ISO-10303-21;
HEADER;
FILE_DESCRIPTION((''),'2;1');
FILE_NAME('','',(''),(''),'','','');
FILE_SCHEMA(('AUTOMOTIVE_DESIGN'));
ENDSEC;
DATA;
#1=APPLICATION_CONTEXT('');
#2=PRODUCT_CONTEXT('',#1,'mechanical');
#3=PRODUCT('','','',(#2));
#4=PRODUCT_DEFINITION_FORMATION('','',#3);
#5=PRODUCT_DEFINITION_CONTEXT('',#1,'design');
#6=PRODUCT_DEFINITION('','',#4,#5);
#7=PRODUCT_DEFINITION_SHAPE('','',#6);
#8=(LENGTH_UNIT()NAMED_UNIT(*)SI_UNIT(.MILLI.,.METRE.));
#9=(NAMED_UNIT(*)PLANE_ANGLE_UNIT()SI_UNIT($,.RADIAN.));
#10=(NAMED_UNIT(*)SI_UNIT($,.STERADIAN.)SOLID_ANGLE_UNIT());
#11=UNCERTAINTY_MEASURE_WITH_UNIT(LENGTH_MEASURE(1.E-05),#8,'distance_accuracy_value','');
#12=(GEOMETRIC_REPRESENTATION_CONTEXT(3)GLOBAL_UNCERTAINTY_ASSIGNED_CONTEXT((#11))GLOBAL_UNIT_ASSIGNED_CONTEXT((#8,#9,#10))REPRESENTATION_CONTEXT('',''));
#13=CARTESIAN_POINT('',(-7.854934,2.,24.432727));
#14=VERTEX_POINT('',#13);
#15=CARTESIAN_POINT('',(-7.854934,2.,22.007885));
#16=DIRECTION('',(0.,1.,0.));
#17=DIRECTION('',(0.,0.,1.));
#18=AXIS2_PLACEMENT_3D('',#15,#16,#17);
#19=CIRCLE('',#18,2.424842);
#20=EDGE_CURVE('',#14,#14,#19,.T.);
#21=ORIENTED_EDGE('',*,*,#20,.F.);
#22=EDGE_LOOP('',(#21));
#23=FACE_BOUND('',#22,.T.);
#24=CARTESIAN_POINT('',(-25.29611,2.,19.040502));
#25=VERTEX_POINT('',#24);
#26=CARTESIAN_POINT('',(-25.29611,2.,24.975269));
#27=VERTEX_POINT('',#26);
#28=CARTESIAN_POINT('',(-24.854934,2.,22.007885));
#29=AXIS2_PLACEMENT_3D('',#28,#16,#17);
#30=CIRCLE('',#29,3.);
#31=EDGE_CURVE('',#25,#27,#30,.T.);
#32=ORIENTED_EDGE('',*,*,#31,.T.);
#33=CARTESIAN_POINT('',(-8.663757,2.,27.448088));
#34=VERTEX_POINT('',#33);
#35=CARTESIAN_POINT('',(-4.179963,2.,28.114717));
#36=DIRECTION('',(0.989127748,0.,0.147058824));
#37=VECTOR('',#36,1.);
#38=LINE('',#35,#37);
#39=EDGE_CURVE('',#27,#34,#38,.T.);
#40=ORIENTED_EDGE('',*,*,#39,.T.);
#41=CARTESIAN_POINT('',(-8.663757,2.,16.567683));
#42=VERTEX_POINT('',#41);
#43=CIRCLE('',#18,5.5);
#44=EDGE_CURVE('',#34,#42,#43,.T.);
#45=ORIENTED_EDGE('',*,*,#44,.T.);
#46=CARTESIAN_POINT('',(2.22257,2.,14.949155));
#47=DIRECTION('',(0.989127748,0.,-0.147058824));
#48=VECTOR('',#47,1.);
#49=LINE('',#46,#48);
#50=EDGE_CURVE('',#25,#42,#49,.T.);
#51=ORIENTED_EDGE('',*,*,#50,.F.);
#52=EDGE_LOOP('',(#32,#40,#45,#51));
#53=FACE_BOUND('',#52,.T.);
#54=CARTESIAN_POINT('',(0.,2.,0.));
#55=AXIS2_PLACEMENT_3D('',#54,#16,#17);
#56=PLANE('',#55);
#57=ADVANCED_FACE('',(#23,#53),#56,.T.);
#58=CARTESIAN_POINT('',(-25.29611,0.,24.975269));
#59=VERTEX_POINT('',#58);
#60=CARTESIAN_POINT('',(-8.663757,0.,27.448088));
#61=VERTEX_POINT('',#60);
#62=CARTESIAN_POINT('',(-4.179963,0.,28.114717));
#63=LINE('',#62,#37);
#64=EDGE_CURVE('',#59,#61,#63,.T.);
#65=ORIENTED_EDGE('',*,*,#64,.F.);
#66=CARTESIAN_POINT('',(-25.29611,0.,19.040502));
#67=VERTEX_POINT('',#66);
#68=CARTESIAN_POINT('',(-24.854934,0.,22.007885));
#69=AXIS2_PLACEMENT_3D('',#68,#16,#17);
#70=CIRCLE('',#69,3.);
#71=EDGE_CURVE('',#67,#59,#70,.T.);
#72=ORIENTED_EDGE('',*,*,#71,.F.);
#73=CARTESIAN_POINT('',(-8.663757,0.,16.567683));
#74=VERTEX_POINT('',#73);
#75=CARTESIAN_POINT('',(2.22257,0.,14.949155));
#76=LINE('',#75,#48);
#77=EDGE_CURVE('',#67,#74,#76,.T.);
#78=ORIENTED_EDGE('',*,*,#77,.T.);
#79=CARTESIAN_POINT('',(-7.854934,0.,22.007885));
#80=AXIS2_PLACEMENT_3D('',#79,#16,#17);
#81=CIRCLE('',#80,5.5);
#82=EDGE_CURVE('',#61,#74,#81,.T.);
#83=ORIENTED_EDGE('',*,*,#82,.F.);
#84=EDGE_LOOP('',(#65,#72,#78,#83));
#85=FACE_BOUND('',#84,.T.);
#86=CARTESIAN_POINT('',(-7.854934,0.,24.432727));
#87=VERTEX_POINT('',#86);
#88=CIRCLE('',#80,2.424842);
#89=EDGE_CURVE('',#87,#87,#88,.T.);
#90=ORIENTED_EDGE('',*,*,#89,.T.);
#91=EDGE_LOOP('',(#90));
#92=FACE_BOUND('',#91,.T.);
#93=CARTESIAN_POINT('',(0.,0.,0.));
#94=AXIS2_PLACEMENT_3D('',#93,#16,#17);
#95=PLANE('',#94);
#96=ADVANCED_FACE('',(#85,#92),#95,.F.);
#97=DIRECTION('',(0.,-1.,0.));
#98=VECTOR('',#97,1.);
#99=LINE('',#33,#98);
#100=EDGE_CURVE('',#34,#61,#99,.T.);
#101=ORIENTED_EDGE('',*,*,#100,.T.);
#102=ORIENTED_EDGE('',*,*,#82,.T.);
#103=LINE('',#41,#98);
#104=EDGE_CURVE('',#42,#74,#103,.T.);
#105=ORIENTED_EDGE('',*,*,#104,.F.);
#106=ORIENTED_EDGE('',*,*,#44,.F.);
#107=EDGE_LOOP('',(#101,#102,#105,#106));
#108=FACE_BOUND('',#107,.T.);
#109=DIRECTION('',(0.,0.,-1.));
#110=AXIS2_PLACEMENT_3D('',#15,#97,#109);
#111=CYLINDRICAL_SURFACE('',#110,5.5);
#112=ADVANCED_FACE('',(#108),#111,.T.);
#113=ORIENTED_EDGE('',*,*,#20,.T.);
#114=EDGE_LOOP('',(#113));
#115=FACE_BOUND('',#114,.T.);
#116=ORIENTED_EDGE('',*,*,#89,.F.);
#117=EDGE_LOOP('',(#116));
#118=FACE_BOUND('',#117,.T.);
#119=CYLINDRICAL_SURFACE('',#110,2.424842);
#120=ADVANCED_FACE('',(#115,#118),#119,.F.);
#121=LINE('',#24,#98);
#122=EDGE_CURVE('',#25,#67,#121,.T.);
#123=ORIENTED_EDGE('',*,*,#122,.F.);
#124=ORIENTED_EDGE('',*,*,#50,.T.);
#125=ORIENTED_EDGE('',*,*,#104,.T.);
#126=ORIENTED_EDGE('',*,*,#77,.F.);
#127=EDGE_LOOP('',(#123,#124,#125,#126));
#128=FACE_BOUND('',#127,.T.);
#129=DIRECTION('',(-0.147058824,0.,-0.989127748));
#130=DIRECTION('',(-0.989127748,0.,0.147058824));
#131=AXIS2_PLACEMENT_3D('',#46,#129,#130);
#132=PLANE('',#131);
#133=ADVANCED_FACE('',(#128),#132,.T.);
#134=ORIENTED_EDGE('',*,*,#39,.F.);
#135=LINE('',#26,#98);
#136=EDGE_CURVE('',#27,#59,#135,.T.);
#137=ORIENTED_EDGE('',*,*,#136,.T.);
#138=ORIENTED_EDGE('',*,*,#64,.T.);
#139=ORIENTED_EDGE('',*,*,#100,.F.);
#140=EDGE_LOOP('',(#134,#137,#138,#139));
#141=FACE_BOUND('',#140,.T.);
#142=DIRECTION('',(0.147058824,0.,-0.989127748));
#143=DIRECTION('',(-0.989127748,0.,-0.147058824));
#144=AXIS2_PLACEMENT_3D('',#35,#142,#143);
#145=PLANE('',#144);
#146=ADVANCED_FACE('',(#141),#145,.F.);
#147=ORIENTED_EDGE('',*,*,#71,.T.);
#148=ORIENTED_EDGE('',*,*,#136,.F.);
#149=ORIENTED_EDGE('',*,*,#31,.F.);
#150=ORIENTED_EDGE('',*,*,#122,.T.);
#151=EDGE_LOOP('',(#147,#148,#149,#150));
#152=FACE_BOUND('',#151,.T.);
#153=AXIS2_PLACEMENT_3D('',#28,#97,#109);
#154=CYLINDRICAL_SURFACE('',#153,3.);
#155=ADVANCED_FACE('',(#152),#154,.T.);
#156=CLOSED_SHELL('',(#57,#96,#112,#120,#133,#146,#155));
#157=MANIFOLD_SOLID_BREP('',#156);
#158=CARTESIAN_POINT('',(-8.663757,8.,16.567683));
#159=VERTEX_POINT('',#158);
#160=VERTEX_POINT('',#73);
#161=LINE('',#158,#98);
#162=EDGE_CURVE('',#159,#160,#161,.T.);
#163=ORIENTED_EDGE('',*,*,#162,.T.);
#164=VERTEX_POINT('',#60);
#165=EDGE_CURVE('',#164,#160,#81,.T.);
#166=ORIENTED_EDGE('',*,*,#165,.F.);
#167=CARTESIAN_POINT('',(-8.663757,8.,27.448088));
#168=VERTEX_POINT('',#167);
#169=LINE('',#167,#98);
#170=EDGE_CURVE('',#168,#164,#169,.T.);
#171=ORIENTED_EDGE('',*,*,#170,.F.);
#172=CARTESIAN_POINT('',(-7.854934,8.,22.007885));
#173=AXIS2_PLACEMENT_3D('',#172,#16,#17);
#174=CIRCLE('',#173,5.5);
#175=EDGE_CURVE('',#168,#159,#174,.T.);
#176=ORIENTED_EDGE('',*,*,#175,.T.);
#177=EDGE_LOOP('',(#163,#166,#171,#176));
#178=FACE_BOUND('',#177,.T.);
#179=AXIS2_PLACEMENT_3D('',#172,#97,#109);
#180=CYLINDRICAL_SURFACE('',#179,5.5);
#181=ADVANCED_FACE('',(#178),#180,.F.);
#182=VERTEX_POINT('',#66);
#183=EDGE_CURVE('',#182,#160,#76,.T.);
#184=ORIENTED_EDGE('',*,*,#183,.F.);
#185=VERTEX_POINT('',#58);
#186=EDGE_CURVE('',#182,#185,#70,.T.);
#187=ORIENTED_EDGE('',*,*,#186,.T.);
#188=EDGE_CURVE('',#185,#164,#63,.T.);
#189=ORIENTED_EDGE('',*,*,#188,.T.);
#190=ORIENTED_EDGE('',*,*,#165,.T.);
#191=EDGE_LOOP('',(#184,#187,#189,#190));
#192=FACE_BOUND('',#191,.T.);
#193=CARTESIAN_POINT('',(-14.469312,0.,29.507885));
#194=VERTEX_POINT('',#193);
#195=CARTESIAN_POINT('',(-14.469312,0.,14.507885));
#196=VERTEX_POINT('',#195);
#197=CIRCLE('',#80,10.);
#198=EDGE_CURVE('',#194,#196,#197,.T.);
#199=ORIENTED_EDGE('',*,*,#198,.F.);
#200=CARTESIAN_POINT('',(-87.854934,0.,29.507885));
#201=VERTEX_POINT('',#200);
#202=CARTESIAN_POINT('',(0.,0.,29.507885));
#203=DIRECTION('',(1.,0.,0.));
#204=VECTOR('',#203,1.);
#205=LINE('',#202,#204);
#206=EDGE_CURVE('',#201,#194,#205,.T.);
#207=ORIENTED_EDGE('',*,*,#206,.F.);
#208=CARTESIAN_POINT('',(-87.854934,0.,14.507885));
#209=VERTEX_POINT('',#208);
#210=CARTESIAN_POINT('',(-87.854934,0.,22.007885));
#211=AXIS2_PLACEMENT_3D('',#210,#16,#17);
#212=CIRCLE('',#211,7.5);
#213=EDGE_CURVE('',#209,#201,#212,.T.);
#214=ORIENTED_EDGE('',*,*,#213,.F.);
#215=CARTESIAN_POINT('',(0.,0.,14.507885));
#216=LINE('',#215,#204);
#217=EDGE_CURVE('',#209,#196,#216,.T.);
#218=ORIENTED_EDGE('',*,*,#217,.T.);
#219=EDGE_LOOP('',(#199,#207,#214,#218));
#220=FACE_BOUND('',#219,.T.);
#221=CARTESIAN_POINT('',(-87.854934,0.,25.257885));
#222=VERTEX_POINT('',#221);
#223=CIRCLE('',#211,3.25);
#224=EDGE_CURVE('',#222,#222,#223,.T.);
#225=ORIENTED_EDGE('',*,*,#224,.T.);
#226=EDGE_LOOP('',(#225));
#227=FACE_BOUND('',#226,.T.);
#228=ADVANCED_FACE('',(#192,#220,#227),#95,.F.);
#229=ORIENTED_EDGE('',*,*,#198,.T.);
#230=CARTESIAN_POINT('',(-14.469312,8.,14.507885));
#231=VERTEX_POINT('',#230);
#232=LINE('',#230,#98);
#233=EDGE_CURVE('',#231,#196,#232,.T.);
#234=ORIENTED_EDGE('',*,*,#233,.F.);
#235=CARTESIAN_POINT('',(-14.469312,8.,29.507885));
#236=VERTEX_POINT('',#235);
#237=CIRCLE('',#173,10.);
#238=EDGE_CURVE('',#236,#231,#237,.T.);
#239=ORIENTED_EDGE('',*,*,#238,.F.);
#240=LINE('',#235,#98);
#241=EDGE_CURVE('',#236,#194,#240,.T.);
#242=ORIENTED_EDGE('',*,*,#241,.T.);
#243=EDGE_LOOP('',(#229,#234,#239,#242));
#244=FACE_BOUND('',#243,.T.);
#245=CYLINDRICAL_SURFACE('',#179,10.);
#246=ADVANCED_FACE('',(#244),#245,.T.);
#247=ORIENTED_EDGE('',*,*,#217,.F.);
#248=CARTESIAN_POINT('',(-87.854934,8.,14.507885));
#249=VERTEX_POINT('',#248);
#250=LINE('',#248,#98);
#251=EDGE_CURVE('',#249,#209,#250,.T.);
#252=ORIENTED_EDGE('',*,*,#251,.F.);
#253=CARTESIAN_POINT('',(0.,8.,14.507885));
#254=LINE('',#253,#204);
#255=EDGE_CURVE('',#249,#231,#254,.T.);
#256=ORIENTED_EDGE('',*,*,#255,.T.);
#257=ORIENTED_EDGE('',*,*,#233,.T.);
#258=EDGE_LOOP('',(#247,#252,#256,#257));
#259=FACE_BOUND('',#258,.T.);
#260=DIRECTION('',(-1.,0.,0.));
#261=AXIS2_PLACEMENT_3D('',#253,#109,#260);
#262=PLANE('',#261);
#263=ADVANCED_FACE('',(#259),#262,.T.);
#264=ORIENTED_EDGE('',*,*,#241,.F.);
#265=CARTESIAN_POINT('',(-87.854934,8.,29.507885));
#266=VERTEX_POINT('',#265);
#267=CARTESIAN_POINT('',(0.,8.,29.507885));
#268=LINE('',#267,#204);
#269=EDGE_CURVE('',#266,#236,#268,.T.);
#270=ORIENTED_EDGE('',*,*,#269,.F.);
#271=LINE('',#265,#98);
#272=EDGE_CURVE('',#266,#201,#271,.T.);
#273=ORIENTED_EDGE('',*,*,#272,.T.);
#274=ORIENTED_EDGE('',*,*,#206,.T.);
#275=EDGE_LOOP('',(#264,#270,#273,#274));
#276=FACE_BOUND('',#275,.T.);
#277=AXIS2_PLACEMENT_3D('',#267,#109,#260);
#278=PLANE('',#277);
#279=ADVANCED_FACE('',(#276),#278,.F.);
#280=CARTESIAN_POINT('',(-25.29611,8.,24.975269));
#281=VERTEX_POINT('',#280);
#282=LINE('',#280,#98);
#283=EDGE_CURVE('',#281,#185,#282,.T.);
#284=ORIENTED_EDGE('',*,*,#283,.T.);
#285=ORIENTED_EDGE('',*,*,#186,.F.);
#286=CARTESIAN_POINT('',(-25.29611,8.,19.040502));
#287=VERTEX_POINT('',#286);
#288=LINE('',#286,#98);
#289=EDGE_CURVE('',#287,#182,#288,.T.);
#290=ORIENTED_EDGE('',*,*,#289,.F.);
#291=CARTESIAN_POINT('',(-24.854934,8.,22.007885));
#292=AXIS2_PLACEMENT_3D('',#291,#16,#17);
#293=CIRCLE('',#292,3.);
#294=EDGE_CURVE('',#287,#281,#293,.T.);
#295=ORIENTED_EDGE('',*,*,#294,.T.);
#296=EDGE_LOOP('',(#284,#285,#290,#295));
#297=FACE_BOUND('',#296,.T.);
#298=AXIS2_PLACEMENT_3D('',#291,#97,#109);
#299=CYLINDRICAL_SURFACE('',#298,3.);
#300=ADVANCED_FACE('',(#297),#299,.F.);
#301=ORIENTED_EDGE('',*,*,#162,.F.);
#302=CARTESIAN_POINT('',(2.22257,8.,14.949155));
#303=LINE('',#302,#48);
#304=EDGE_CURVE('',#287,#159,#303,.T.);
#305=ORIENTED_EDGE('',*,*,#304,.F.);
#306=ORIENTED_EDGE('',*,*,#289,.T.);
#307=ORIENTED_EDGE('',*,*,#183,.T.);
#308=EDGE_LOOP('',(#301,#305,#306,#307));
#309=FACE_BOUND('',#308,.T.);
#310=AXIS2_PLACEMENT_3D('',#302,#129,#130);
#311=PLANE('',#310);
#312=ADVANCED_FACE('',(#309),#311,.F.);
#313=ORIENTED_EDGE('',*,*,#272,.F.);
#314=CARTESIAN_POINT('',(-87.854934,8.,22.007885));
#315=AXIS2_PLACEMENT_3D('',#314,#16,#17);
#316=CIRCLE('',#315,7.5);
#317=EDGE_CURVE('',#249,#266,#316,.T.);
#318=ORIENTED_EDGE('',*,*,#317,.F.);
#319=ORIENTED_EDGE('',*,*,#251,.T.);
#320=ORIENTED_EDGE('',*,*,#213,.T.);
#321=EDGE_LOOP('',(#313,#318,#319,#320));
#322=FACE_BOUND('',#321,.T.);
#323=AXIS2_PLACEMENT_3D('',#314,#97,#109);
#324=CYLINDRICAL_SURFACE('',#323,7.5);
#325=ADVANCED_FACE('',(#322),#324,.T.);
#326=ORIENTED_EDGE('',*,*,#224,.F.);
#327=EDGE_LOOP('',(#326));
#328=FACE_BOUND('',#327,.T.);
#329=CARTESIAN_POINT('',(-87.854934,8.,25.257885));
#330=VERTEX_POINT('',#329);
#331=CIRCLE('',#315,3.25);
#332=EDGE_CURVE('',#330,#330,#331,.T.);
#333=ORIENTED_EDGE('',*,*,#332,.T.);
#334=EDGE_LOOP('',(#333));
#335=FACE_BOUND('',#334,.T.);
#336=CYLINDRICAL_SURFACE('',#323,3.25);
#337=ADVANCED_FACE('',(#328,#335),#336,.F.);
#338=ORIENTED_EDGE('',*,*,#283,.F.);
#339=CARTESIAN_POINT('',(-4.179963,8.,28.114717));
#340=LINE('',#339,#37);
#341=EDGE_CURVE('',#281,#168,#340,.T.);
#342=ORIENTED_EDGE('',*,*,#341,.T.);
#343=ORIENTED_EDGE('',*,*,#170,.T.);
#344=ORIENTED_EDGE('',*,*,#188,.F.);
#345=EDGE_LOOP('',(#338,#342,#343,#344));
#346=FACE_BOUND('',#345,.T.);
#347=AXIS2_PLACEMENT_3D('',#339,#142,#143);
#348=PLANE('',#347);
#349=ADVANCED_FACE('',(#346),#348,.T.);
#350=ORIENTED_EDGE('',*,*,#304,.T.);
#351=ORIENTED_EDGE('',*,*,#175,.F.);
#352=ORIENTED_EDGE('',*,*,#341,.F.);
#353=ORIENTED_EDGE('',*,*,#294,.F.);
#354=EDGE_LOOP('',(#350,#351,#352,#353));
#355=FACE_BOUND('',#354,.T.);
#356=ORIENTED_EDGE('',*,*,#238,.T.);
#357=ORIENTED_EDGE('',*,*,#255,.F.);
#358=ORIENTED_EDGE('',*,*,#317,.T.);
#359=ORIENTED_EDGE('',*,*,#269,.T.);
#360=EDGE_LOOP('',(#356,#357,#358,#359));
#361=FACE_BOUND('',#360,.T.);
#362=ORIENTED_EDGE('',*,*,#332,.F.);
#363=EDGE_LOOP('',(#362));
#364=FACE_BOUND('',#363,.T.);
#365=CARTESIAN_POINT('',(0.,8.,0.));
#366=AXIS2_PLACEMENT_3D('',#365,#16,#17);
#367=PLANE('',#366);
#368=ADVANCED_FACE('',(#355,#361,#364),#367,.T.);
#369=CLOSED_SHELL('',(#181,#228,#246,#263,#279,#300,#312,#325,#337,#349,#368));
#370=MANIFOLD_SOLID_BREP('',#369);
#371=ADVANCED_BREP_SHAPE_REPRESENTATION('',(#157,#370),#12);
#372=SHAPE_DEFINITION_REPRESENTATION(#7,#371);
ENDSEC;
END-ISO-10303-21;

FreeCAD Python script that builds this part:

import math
import FreeCAD as App
import Part
import Sketcher
from FreeCAD import Vector

doc = App.newDocument("Part")
body = doc.addObject("PartDesign::Body", "Body")

# Sketch on XZ plane
sketch1 = body.newObject("Sketcher::SketchObject", "Sketch")
sketch1.AttachmentSupport = (doc.getObject("XZ_Plane"), [""])
sketch1.MapMode = "FlatFace"
sketch1.addGeometry([
    Part.ArcOfCircle(Part.Circle(Vector(-87.9, 22, 0), Vector(0, 0, 1), 7.5), math.radians(90), math.radians(270)),  # 0
    Part.LineSegment(Vector(-87.9, 29.5, 0), Vector(-14.5, 29.5, 0)),  # 1
    Part.ArcOfCircle(Part.Circle(Vector(-7.9, 22, 0), Vector(0, 0, 1), 10), math.radians(0), math.radians(131)),  # 2
    Part.ArcOfCircle(Part.Circle(Vector(-7.9, 22, 0), Vector(0, 0, 1), 10), math.radians(-131), math.radians(0)),  # 3
    Part.LineSegment(Vector(-14.5, 14.5, 0), Vector(-87.9, 14.5, 0)),  # 4
    Part.ArcOfCircle(Part.Circle(Vector(-87.9, 22, 0), Vector(0, 0, 1), 3.3), math.radians(0), math.radians(90)),  # 5
    Part.ArcOfCircle(Part.Circle(Vector(-87.9, 22, 0), Vector(0, 0, 1), 3.2), math.radians(90), math.radians(270)),  # 6
    Part.ArcOfCircle(Part.Circle(Vector(-87.9, 22, 0), Vector(0, 0, 1), 3.2), math.radians(-90), math.radians(0)),  # 7
    Part.ArcOfCircle(Part.Circle(Vector(-7.9, 22, 0), Vector(0, 0, 1), 5.5), math.radians(90), math.radians(98.46)),  # 8
    Part.LineSegment(Vector(-8.7, 27.4, 0), Vector(-16.9, 26.2, 0)),  # 9
    Part.LineSegment(Vector(-16.9, 26.2, 0), Vector(-25.3, 25, 0)),  # 10
    Part.ArcOfCircle(Part.Circle(Vector(-24.9, 22, 0), Vector(0, 0, 1), 3), math.radians(98), math.radians(262)),  # 11
    Part.LineSegment(Vector(-25.3, 19, 0), Vector(-16.9, 17.8, 0)),  # 12
    Part.LineSegment(Vector(-16.9, 17.8, 0), Vector(-8.7, 16.6, 0)),  # 13
    Part.ArcOfCircle(Part.Circle(Vector(-7.9, 22, 0), Vector(0, 0, 1), 5.5), math.radians(-98.46), math.radians(-90)),  # 14
    Part.ArcOfCircle(Part.Circle(Vector(-7.9, 22, 0), Vector(0, 0, 1), 5.5), math.radians(-90), math.radians(0)),  # 15
    Part.ArcOfCircle(Part.Circle(Vector(-7.9, 22, 0), Vector(0, 0, 1), 5.5), math.radians(0), math.radians(90)),  # 16
], False)
sketch1.addConstraint([
    Sketcher.Constraint("Tangent", 0, 1, 1, 1),
    Sketcher.Constraint("Coincident", 1, 2, 2, 2),
    Sketcher.Constraint("Tangent", 2, 1, 3, 2),
    Sketcher.Constraint("Coincident", 3, 1, 4, 1),
    Sketcher.Constraint("Tangent", 4, 2, 0, 2),
    Sketcher.Constraint("Tangent", 5, 2, 6, 1),
    Sketcher.Constraint("Tangent", 6, 2, 7, 1),
    Sketcher.Constraint("Tangent", 7, 2, 5, 1),
    Sketcher.Constraint("Tangent", 8, 2, 9, 1),
    Sketcher.Constraint("Coincident", 9, 2, 10, 1),
    Sketcher.Constraint("Tangent", 10, 2, 11, 1),
    Sketcher.Constraint("Tangent", 11, 2, 12, 1),
    Sketcher.Constraint("Coincident", 12, 2, 13, 1),
    Sketcher.Constraint("Tangent", 13, 2, 14, 1),
    Sketcher.Constraint("Tangent", 14, 2, 15, 1),
    Sketcher.Constraint("Tangent", 15, 2, 16, 1),
    Sketcher.Constraint("Tangent", 16, 2, 8, 1),
    Sketcher.Constraint("Horizontal", 1),
    Sketcher.Constraint("Horizontal", 4),
    Sketcher.Constraint("Coincident", 5, 3, 0, 3),
    Sketcher.Constraint("Coincident", 8, 3, 2, 3),
    Sketcher.Constraint("Coincident", 14, 3, 2, 3),
    Sketcher.Constraint("Equal", 2, 3),
    Sketcher.Constraint("Equal", 8, 14),
    Sketcher.Constraint("Parallel", 9, 10),
    Sketcher.Constraint("Parallel", 12, 13),
    Sketcher.Constraint("Horizontal", 0, 3, 2, 3),
    Sketcher.Constraint("Horizontal", 8, 3, 11, 3),
    Sketcher.Constraint("Horizontal", 16, 3, 2, 1),
    Sketcher.Constraint("Horizontal", 2, 1, 7, 2),
    Sketcher.Constraint("Horizontal", 7, 2, 15, 2),
    Sketcher.Constraint("Vertical", 4, 2, 5, 2),
    Sketcher.Constraint("Vertical", 5, 2, 6, 2),
    Sketcher.Constraint("Vertical", 9, 2, 12, 2),
    Sketcher.Constraint("Vertical", 16, 3, 14, 2),
    Sketcher.Constraint("Vertical", 14, 2, 16, 2),
    Sketcher.Constraint("Radius", 2, 10.0),
    Sketcher.Constraint("Radius", 11, 3.0),
    Sketcher.Constraint("Radius", 0, 7.5),
    Sketcher.Constraint("Radius", 8, 5.5),
    Sketcher.Constraint("Radius", 5, 3.25),
    Sketcher.Constraint("DistanceX", 0, 3, 2, 3, 80.0),
    Sketcher.Constraint("DistanceX", 11, 3, 2, 3, 17.0),
    Sketcher.Constraint("DistanceX", 1, 2, -1, 1, 14.469312),
    Sketcher.Constraint("DistanceY", -1, 1, 10, 2, 24.975269),
    Sketcher.Constraint("DistanceX", 9, 2, 1, 2, 2.455291),
])
pad1 = body.newObject("PartDesign::Pad", "Pad")
pad1.Profile = sketch1
pad1.Length = 8
pad1.Reversed = True
body2 = doc.addObject("PartDesign::Body", "Body001")

# Sketch on XZ plane
sketch2 = body2.newObject("Sketcher::SketchObject", "Sketch001")
sketch2.AttachmentSupport = (doc.getObject("XZ_Plane001"), [""])
sketch2.MapMode = "FlatFace"
sketch2.addGeometry([
    Part.ArcOfCircle(Part.Circle(Vector(-7.9, 22, 0), Vector(0, 0, 1), 5.5), math.radians(-98), math.radians(98)),  # 0
    Part.LineSegment(Vector(-8.7, 16.6, 0), Vector(-25.3, 19, 0)),  # 1
    Part.ArcOfCircle(Part.Circle(Vector(-24.9, 22, 0), Vector(0, 0, 1), 3), math.radians(98), math.radians(262)),  # 2
    Part.LineSegment(Vector(-25.3, 25, 0), Vector(-8.7, 27.4, 0)),  # 3
    Part.Circle(Vector(-7.9, 22, 0), Vector(0, 0, 1), 2.4),  # 4
], False)
sketch2.addConstraint([
    Sketcher.Constraint("Tangent", 0, 1, 1, 1),
    Sketcher.Constraint("Tangent", 1, 2, 2, 2),
    Sketcher.Constraint("Tangent", 2, 1, 3, 1),
    Sketcher.Constraint("Tangent", 3, 2, 0, 2),
    Sketcher.Constraint("Coincident", 4, 3, 0, 3),
    Sketcher.Constraint("Horizontal", 0, 3, 2, 3),
    Sketcher.Constraint("Radius", 2, 3.0),
    Sketcher.Constraint("Radius", 0, 5.5),
    Sketcher.Constraint("DistanceX", 2, 3, 0, 3, 17.0),
    Sketcher.Constraint("Diameter", 4, 4.849684),
    Sketcher.Constraint("DistanceX", 1, 2, -1, 1, 25.29611),
    Sketcher.Constraint("DistanceY", -1, 1, 2, 1, 24.975269),
])
pad2 = body2.newObject("PartDesign::Pad", "Pad001")
pad2.Profile = sketch2
pad2.Length = 2
pad2.Reversed = True

doc.recompute()
